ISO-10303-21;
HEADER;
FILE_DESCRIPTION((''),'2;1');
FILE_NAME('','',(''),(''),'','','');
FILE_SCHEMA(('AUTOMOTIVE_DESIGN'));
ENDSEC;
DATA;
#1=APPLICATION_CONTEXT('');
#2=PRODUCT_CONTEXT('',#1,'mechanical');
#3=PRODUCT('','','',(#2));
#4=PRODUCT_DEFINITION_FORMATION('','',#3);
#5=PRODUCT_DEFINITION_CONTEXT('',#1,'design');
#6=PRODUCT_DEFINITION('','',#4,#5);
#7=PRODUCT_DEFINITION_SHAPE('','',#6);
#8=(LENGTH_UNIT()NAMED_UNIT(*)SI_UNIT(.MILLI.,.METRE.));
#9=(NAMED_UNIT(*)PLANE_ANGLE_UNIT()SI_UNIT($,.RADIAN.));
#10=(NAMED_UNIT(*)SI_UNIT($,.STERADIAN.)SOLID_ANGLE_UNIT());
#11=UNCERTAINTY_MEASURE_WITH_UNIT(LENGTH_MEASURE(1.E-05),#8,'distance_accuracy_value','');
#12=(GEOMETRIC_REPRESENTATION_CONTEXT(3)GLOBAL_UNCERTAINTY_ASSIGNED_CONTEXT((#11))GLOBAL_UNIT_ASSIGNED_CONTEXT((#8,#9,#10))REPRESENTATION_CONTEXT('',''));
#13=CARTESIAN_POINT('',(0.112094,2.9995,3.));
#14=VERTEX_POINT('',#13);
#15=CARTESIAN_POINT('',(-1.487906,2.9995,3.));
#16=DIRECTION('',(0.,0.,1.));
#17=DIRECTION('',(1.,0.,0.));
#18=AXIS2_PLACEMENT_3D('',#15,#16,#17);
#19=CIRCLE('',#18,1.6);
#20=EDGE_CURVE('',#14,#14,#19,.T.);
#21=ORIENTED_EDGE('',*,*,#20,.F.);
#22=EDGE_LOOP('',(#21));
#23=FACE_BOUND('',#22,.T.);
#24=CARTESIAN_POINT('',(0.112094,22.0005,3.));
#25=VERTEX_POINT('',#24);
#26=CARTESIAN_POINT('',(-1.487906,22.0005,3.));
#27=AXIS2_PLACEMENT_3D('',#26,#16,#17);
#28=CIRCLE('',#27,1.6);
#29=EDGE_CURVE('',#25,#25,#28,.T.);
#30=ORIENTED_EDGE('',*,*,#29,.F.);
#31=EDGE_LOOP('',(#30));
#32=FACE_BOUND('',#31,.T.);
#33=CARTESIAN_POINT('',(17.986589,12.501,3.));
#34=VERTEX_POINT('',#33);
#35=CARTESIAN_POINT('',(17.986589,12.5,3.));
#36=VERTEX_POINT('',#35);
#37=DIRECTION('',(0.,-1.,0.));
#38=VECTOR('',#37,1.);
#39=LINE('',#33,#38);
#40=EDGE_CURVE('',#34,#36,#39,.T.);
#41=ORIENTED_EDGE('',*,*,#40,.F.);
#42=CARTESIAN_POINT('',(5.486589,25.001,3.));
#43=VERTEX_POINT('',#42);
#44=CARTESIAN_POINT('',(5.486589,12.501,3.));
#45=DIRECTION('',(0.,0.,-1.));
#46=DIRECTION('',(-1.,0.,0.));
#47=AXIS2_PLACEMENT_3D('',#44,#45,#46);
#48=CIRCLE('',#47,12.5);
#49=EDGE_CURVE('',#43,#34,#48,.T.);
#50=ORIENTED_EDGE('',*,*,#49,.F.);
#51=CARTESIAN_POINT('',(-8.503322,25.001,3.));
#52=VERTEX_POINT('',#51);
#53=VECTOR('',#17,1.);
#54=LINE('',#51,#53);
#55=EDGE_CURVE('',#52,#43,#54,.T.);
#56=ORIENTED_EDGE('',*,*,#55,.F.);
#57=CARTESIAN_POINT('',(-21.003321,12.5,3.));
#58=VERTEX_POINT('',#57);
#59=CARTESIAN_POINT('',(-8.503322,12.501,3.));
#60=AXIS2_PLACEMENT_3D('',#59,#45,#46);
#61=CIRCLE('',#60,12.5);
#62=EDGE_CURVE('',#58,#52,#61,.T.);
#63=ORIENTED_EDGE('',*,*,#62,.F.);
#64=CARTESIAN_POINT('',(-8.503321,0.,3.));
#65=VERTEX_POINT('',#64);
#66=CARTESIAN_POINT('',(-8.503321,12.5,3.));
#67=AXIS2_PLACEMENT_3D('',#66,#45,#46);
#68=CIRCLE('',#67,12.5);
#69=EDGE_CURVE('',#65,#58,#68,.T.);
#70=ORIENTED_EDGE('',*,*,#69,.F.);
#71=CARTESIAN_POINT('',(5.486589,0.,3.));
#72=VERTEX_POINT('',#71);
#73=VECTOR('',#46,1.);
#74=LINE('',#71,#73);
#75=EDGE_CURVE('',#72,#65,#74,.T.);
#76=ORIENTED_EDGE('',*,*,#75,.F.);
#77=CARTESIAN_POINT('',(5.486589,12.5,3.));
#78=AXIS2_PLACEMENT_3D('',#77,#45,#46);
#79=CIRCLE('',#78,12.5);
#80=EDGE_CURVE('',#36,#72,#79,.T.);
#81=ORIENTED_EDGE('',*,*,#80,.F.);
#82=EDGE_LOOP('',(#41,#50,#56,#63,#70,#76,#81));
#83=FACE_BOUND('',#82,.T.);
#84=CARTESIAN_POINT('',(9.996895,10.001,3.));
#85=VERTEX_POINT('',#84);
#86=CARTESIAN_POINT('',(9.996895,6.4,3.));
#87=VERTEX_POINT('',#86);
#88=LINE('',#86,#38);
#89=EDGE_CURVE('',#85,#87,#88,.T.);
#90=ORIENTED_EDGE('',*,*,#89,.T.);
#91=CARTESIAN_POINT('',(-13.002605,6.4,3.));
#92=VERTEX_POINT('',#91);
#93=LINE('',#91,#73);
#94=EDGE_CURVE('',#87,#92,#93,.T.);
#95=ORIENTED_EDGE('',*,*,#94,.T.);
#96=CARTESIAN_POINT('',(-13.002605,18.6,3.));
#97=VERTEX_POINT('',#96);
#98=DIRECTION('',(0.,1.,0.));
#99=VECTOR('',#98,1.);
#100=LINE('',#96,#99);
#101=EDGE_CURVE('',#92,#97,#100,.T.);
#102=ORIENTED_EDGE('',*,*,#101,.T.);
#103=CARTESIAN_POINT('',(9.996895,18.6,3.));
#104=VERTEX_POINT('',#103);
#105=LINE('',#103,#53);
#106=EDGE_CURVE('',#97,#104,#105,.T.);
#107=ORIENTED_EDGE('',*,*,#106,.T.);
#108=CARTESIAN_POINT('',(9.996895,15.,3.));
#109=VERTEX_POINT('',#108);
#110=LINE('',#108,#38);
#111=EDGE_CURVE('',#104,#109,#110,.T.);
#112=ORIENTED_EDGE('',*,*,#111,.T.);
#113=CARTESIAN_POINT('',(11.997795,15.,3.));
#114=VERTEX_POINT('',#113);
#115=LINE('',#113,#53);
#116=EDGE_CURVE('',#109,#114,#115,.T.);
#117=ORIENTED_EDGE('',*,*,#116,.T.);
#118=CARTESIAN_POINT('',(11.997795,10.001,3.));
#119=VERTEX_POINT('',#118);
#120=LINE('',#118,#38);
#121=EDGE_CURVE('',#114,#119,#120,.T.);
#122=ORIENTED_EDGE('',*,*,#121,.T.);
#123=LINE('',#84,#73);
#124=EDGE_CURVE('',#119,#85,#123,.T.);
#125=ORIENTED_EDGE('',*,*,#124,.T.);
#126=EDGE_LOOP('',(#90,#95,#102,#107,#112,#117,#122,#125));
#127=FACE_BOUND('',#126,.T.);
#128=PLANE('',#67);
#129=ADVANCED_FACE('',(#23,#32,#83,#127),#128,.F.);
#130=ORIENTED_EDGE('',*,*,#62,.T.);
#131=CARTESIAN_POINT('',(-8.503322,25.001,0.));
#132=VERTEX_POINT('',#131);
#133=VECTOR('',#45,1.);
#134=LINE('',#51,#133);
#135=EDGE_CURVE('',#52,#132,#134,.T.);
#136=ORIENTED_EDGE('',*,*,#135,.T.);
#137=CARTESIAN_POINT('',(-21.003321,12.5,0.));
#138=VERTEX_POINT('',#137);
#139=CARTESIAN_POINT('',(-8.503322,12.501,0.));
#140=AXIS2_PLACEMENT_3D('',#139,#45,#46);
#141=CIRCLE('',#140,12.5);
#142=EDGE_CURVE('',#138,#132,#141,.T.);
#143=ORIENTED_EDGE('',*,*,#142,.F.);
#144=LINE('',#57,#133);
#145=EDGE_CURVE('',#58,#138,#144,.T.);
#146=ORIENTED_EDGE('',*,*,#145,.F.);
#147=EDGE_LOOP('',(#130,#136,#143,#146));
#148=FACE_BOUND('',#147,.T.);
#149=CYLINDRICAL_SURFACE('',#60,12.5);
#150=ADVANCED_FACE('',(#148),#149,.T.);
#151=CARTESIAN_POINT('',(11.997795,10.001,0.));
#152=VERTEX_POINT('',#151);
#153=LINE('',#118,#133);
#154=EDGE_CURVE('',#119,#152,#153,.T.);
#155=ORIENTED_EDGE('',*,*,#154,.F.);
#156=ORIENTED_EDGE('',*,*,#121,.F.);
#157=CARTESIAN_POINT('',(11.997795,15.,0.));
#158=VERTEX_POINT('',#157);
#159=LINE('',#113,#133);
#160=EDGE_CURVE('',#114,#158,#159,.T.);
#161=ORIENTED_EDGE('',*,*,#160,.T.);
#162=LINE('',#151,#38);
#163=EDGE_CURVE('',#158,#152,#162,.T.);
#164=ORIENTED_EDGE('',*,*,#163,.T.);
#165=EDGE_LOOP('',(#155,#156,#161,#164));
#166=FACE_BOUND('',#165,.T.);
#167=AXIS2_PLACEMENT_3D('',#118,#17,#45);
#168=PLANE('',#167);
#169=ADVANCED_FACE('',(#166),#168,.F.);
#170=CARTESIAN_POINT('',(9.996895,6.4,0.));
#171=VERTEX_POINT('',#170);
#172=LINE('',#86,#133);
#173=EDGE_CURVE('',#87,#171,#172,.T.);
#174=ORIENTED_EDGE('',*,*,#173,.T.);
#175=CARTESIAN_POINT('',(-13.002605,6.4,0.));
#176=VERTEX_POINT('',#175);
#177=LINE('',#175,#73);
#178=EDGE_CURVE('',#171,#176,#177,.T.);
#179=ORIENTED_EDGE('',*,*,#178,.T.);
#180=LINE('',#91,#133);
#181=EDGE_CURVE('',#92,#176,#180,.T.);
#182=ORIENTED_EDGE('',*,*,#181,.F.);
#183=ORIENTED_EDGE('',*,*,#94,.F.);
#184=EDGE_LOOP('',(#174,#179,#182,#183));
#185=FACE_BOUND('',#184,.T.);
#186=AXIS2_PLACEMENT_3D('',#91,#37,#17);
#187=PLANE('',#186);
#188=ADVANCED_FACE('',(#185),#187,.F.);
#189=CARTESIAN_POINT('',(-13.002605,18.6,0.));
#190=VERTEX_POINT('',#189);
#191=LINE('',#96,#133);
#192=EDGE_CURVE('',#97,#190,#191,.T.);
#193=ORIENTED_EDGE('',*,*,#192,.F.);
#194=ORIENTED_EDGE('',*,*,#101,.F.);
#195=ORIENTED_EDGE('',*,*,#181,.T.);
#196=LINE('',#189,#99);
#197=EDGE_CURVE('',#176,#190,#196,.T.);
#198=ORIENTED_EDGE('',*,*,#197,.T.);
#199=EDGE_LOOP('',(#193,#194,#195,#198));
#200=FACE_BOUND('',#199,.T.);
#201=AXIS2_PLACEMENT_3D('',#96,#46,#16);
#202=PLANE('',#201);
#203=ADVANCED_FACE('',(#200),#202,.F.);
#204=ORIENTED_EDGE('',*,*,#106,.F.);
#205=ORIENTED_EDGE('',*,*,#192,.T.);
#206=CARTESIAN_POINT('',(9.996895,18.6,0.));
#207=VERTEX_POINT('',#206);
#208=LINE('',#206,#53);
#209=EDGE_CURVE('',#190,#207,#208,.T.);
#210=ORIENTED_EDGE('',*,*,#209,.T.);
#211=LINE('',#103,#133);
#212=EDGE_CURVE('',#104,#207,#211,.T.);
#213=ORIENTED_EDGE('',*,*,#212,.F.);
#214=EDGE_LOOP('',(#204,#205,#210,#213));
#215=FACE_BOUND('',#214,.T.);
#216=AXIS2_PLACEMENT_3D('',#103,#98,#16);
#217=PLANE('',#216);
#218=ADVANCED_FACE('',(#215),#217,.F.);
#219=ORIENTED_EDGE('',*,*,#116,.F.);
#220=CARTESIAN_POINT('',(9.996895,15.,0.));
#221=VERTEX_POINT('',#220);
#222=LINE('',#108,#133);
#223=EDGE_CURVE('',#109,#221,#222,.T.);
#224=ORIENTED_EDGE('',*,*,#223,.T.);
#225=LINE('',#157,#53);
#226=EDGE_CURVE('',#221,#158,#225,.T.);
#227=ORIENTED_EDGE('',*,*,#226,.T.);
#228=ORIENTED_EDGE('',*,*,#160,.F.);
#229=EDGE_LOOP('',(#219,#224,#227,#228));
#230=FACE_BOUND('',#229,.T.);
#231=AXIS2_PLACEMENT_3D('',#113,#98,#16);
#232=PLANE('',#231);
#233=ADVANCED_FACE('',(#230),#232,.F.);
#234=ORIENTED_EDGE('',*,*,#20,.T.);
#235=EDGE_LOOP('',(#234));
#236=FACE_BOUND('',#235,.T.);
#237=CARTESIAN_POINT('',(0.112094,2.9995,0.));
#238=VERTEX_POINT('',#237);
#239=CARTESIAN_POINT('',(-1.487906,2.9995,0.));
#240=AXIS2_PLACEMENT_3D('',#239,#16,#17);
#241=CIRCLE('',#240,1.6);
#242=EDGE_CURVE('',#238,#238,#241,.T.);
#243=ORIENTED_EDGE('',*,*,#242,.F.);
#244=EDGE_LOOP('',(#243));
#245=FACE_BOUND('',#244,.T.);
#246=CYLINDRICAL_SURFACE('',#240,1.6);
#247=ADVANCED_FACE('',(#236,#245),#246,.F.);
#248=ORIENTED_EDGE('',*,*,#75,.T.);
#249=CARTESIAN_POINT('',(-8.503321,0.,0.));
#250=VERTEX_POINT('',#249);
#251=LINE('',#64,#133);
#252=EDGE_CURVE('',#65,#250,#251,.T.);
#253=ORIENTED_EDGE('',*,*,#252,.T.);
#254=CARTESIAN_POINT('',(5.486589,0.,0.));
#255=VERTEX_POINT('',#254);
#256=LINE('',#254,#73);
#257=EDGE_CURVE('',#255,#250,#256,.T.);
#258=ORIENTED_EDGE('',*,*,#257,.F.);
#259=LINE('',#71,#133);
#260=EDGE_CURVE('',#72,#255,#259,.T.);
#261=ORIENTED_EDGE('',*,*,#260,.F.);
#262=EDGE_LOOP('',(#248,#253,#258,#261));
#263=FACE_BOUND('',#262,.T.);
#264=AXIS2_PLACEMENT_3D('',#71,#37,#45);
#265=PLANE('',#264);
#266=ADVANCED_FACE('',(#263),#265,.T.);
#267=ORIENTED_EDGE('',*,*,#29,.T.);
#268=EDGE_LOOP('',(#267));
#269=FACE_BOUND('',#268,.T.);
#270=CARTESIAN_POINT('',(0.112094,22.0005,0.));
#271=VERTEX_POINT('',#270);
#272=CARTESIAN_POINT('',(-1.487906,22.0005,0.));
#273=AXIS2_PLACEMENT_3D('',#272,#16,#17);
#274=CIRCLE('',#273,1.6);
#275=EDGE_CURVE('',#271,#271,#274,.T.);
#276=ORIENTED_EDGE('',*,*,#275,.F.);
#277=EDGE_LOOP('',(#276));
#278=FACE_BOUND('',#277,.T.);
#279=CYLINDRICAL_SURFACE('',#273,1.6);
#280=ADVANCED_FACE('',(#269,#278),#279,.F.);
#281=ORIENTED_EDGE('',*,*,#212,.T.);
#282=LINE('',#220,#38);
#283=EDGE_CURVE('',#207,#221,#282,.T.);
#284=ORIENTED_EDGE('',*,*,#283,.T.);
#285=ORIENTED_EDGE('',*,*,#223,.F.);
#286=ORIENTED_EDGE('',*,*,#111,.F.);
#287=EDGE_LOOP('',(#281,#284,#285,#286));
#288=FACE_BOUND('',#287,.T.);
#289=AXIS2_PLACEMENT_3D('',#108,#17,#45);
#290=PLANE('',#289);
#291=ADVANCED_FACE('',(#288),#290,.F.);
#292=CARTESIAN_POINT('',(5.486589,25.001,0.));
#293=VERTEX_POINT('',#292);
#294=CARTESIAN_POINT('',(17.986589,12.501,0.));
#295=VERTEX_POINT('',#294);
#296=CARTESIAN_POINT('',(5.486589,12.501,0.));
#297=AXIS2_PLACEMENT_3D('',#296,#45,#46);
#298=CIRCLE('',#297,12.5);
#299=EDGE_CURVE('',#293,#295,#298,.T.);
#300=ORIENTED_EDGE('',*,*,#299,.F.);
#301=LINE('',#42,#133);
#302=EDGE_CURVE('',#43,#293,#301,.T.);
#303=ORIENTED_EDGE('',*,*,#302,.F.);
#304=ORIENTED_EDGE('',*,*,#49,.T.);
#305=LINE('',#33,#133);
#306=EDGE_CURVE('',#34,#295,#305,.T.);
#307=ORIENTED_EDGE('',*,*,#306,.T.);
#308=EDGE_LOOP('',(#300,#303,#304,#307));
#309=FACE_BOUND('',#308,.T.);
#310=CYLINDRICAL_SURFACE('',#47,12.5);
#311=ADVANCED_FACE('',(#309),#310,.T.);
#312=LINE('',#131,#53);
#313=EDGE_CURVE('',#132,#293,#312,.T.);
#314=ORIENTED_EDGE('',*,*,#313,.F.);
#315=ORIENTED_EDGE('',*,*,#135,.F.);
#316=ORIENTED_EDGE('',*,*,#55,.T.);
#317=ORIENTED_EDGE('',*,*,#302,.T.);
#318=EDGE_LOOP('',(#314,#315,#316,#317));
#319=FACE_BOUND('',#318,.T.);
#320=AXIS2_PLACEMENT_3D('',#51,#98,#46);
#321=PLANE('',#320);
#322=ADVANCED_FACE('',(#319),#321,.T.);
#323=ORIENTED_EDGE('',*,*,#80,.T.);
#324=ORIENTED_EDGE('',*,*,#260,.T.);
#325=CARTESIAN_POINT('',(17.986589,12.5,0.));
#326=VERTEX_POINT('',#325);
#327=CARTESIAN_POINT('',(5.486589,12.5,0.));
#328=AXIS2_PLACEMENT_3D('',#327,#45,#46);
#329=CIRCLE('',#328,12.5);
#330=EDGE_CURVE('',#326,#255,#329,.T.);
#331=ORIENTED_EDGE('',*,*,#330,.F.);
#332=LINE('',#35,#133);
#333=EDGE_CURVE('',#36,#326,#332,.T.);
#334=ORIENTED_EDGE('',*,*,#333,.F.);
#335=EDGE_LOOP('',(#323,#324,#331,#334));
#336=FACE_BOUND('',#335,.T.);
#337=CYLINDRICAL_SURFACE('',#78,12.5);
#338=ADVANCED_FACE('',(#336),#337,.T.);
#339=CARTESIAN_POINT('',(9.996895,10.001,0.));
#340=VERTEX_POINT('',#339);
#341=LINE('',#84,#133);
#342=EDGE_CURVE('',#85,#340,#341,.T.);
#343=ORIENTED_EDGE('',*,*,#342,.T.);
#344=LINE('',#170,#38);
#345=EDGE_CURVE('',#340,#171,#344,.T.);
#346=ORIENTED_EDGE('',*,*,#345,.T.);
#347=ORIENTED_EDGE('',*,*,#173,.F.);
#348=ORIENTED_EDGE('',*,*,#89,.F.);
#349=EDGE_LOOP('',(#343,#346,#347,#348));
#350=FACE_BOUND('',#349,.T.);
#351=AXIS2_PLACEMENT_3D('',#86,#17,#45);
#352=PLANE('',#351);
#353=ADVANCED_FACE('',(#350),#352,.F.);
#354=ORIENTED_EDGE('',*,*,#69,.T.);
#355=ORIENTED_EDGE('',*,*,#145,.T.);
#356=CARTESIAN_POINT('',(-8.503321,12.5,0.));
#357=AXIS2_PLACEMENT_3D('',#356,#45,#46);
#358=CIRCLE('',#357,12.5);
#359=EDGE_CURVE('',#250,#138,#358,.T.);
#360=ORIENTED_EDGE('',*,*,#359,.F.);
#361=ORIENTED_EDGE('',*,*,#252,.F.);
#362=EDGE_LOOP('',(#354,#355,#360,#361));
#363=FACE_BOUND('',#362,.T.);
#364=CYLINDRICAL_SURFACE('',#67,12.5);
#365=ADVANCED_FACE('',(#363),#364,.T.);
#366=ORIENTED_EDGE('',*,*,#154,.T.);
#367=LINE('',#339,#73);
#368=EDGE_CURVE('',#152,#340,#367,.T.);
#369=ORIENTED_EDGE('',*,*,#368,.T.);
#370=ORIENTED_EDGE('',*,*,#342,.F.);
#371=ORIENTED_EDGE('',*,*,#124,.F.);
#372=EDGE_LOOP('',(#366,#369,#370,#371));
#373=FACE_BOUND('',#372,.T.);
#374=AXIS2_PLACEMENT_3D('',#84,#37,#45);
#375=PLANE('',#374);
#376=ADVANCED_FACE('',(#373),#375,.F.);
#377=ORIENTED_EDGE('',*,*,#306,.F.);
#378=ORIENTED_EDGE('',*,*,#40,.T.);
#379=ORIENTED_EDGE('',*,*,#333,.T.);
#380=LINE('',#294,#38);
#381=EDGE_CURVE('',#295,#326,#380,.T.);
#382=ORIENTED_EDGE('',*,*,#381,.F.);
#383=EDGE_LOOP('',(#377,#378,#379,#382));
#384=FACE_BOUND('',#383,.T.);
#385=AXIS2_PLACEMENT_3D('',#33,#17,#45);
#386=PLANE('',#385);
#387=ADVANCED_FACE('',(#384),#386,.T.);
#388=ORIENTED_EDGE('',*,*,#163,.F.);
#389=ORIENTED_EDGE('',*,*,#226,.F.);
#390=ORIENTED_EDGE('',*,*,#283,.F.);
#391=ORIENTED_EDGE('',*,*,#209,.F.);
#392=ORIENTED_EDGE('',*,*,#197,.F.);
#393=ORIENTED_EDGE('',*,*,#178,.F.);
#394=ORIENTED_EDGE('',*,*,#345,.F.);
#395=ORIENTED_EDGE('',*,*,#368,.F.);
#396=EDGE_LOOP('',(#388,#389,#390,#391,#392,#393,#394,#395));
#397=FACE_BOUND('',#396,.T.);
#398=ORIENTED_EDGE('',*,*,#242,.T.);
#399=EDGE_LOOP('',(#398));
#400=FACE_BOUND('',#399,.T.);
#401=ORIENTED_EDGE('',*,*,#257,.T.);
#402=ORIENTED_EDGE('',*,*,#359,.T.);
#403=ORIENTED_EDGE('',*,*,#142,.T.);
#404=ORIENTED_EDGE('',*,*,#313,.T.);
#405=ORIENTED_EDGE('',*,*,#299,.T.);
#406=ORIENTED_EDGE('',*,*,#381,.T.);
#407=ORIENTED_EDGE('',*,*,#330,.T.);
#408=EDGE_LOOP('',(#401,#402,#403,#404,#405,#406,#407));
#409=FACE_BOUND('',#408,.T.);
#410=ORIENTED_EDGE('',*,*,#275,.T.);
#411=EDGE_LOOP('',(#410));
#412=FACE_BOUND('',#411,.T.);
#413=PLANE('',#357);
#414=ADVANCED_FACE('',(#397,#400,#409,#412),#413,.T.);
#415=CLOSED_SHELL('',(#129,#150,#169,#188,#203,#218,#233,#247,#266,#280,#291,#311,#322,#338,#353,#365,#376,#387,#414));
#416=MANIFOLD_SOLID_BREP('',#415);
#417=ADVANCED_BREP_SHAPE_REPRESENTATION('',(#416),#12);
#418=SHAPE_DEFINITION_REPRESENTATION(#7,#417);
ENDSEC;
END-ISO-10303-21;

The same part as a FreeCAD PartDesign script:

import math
import FreeCAD as App
import Part
import Sketcher
from FreeCAD import Vector
Q = App.Units.Quantity

doc = App.newDocument("Part")
params = doc.addObject("Spreadsheet::Sheet", "Params")
for row, (alias, value) in enumerate([
    ("sketch1_diameter", "2.6 mm"),
    ("sketch1_radius", "12.5 mm"),
    ("sketch1_height", "3.6 mm"),
    ("sketch1_height2", "12.2 mm"),
    ("pad1_length", "3 mm"),
    ("sketch2_diameter", "3.2 mm"),
], start=1):
    params.set(f"A{row}", alias)
    params.set(f"B{row}", "=" + value)
    params.setAlias(f"B{row}", alias)

body = doc.addObject("PartDesign::Body", "Body")

sketch1 = body.newObject("Sketcher::SketchObject", "Sketch")
sketch1.AttachmentSupport = (doc.getObject("XY_Plane"), [""])
sketch1.MapMode = "FlatFace"
sketch1.addGeometry(Part.LineSegment(Vector(-8.5033, 25.001, 0), Vector(5.4866, 25.001, 0)), False)
sketch1.addGeometry(Part.ArcOfCircle(Part.Circle(Vector(5.4866, 12.501, 0), Vector(0, 0, 1), 12.5), math.radians(0), math.radians(90)), False)
sketch1.addGeometry(Part.LineSegment(Vector(17.9866, 12.501, 0), Vector(17.9866, 12.5, 0)), False)
sketch1.addGeometry(Part.ArcOfCircle(Part.Circle(Vector(5.4866, 12.5, 0), Vector(0, 0, 1), 12.5), math.radians(-90), math.radians(0)), False)
sketch1.addGeometry(Part.LineSegment(Vector(5.4866, 0, 0), Vector(-8.5033, 0, 0)), False)
sketch1.addGeometry(Part.ArcOfCircle(Part.Circle(Vector(-8.5033, 12.5, 0), Vector(0, 0, 1), 12.5), math.radians(-180), math.radians(-90)), False)
sketch1.addGeometry(Part.ArcOfCircle(Part.Circle(Vector(-8.5033, 12.501, 0), Vector(0, 0, 1), 12.5), math.radians(90), math.radians(180)), False)
sketch1.addGeometry(Part.Circle(Vector(-1.4879, 2.9995, 0), Vector(0, 0, 1), 1.3), False)
sketch1.addGeometry(Part.LineSegment(Vector(11.9978, 10.001, 0), Vector(11.9978, 15, 0)), False)
sketch1.addGeometry(Part.LineSegment(Vector(11.9978, 15, 0), Vector(9.9969, 15, 0)), False)
sketch1.addGeometry(Part.LineSegment(Vector(9.9969, 15, 0), Vector(9.9969, 18.6, 0)), False)
sketch1.addGeometry(Part.LineSegment(Vector(9.9969, 18.6, 0), Vector(-13.0026, 18.6, 0)), False)
sketch1.addGeometry(Part.LineSegment(Vector(-13.0026, 18.6, 0), Vector(-13.0026, 6.4, 0)), False)
sketch1.addGeometry(Part.LineSegment(Vector(-13.0026, 6.4, 0), Vector(9.9969, 6.4, 0)), False)
sketch1.addGeometry(Part.LineSegment(Vector(9.9969, 6.4, 0), Vector(9.9969, 10.001, 0)), False)
sketch1.addGeometry(Part.LineSegment(Vector(9.9969, 10.001, 0), Vector(11.9978, 10.001, 0)), False)
sketch1.addGeometry(Part.Circle(Vector(-1.4879, 22.0005, 0), Vector(0, 0, 1), 1.3), False)
sketch1.addConstraint(Sketcher.Constraint("Tangent", 0, 2, 1, 2))
sketch1.addConstraint(Sketcher.Constraint("Tangent", 1, 1, 2, 1))
sketch1.addConstraint(Sketcher.Constraint("Coincident", 2, 2, 3, 2))
sketch1.addConstraint(Sketcher.Constraint("Tangent", 3, 1, 4, 1))
sketch1.addConstraint(Sketcher.Constraint("Tangent", 4, 2, 5, 2))
sketch1.addConstraint(Sketcher.Constraint("Coincident", 5, 1, 6, 2))
sketch1.addConstraint(Sketcher.Constraint("Tangent", 6, 1, 0, 1))
sketch1.addConstraint(Sketcher.Constraint("Coincident", 8, 2, 9, 1))
sketch1.addConstraint(Sketcher.Constraint("Coincident", 9, 2, 10, 1))
sketch1.addConstraint(Sketcher.Constraint("Coincident", 10, 2, 11, 1))
sketch1.addConstraint(Sketcher.Constraint("Coincident", 11, 2, 12, 1))
sketch1.addConstraint(Sketcher.Constraint("Coincident", 12, 2, 13, 1))
sketch1.addConstraint(Sketcher.Constraint("Coincident", 13, 2, 14, 1))
sketch1.addConstraint(Sketcher.Constraint("Coincident", 14, 2, 15, 1))
sketch1.addConstraint(Sketcher.Constraint("Coincident", 15, 2, 8, 1))
sketch1.addConstraint(Sketcher.Constraint("Horizontal", 0))
sketch1.addConstraint(Sketcher.Constraint("Horizontal", 4))
sketch1.addConstraint(Sketcher.Constraint("Vertical", 8))
sketch1.addConstraint(Sketcher.Constraint("Horizontal", 9))
sketch1.addConstraint(Sketcher.Constraint("Vertical", 10))
sketch1.addConstraint(Sketcher.Constraint("Horizontal", 11))
sketch1.addConstraint(Sketcher.Constraint("Vertical", 12))
sketch1.addConstraint(Sketcher.Constraint("Horizontal", 13))
sketch1.addConstraint(Sketcher.Constraint("Vertical", 14))
sketch1.addConstraint(Sketcher.Constraint("Horizontal", 15))
sketch1.addConstraint(Sketcher.Constraint("Equal", 1, 3))
sketch1.addConstraint(Sketcher.Constraint("Equal", 3, 5))
sketch1.addConstraint(Sketcher.Constraint("Equal", 5, 6))
sketch1.addConstraint(Sketcher.Constraint("Equal", 7, 16))
sketch1.addConstraint(Sketcher.Constraint("PointOnObject", 3, 1, -1))
sketch1.addConstraint(Sketcher.Constraint("Horizontal", 6, 3, 1, 1))
sketch1.addConstraint(Sketcher.Constraint("Horizontal", 5, 3, 2, 2))
sketch1.addConstraint(Sketcher.Constraint("Horizontal", 2, 2, 5, 1))
sketch1.addConstraint(Sketcher.Constraint("Vertical", 7, 3, 16, 3))
sketch1.addConstraint(Sketcher.Constraint("Vertical", 10, 2, 13, 2))
sketch1.addConstraint(Sketcher.Constraint("Diameter", 7, Q("2.6 mm")))
sketch1.addConstraint(Sketcher.Constraint("Radius", 1, Q("12.5 mm")))
sketch1.addConstraint(Sketcher.Constraint("DistanceY", 10, 1, 10, 2, Q("3.6 mm")))
sketch1.addConstraint(Sketcher.Constraint("DistanceY", 12, 2, 12, 1, Q("12.2 mm")))
sketch1.addConstraint(Sketcher.Constraint("DistanceY", -1, 1, 8, 2, Q("15 mm")))
sketch1.addConstraint(Sketcher.Constraint("DistanceY", 14, 2, 1, 3, Q("2.5 mm")))
sketch1.addConstraint(Sketcher.Constraint("DistanceY", 2, 2, 2, 1, Q("0.001 mm")))
sketch1.addConstraint(Sketcher.Constraint("DistanceX", 9, 2, 9, 1, Q("2.0009 mm")))
sketch1.addConstraint(Sketcher.Constraint("DistanceX", 11, 2, 11, 1, Q("22.9995 mm")))
sketch1.addConstraint(Sketcher.Constraint("DistanceY", 7, 3, 16, 3, Q("19.001 mm")))
sketch1.addConstraint(Sketcher.Constraint("DistanceX", 0, 1, 0, 2, Q("13.989911 mm")))
sketch1.addConstraint(Sketcher.Constraint("DistanceY", -1, 1, 7, 3, Q("2.9995 mm")))
sketch1.addConstraint(Sketcher.Constraint("DistanceX", 11, 2, 16, 3, Q("11.514699 mm")))
sketch1.addConstraint(Sketcher.Constraint("DistanceX", -1, 1, 1, 3, Q("5.486589 mm")))
sketch1.addConstraint(Sketcher.Constraint("DistanceX", 7, 3, -1, 1, Q("1.487906 mm")))
sketch1.setExpression("Constraints[35]", "Params.sketch1_diameter")
sketch1.setExpression("Constraints[36]", "Params.sketch1_radius")
sketch1.setExpression("Constraints[37]", "Params.sketch1_height")
sketch1.setExpression("Constraints[38]", "Params.sketch1_height2")
pad1 = body.newObject("PartDesign::Pad", "Pad")
pad1.Profile = sketch1
pad1.setExpression("Length", "Params.pad1_length")

sketch2 = body.newObject("Sketcher::SketchObject", "Sketch001")
sketch2.AttachmentSupport = (doc.getObject("XY_Plane"), [""])
sketch2.MapMode = "FlatFace"
sketch2.AttachmentOffset = App.Placement(Vector(0, 0, 3), App.Rotation())
sketch2.addGeometry(Part.Circle(Vector(-1.5, 22, 0), Vector(0, 0, 1), 1.6), False)
sketch2.addGeometry(Part.Circle(Vector(-1.5, 3, 0), Vector(0, 0, 1), 1.6), False)
sketch2.addConstraint(Sketcher.Constraint("Equal", 0, 1))
sketch2.addConstraint(Sketcher.Constraint("Vertical", 0, 3, 1, 3))
sketch2.addConstraint(Sketcher.Constraint("Diameter", 0, Q("3.2 mm")))
sketch2.addConstraint(Sketcher.Constraint("DistanceY", 1, 3, 0, 3, Q("19.001 mm")))
sketch2.addConstraint(Sketcher.Constraint("DistanceY", -1, 1, 0, 3, Q("22.0005 mm")))
sketch2.addConstraint(Sketcher.Constraint("DistanceX", 0, 3, -1, 1, Q("1.487906 mm")))
sketch2.setExpression("Constraints[2]", "Params.sketch2_diameter")
pocket1 = body.newObject("PartDesign::Pocket", "Pocket")
pocket1.Profile = sketch2
pocket1.Type = "ThroughAll"

doc.recompute()
